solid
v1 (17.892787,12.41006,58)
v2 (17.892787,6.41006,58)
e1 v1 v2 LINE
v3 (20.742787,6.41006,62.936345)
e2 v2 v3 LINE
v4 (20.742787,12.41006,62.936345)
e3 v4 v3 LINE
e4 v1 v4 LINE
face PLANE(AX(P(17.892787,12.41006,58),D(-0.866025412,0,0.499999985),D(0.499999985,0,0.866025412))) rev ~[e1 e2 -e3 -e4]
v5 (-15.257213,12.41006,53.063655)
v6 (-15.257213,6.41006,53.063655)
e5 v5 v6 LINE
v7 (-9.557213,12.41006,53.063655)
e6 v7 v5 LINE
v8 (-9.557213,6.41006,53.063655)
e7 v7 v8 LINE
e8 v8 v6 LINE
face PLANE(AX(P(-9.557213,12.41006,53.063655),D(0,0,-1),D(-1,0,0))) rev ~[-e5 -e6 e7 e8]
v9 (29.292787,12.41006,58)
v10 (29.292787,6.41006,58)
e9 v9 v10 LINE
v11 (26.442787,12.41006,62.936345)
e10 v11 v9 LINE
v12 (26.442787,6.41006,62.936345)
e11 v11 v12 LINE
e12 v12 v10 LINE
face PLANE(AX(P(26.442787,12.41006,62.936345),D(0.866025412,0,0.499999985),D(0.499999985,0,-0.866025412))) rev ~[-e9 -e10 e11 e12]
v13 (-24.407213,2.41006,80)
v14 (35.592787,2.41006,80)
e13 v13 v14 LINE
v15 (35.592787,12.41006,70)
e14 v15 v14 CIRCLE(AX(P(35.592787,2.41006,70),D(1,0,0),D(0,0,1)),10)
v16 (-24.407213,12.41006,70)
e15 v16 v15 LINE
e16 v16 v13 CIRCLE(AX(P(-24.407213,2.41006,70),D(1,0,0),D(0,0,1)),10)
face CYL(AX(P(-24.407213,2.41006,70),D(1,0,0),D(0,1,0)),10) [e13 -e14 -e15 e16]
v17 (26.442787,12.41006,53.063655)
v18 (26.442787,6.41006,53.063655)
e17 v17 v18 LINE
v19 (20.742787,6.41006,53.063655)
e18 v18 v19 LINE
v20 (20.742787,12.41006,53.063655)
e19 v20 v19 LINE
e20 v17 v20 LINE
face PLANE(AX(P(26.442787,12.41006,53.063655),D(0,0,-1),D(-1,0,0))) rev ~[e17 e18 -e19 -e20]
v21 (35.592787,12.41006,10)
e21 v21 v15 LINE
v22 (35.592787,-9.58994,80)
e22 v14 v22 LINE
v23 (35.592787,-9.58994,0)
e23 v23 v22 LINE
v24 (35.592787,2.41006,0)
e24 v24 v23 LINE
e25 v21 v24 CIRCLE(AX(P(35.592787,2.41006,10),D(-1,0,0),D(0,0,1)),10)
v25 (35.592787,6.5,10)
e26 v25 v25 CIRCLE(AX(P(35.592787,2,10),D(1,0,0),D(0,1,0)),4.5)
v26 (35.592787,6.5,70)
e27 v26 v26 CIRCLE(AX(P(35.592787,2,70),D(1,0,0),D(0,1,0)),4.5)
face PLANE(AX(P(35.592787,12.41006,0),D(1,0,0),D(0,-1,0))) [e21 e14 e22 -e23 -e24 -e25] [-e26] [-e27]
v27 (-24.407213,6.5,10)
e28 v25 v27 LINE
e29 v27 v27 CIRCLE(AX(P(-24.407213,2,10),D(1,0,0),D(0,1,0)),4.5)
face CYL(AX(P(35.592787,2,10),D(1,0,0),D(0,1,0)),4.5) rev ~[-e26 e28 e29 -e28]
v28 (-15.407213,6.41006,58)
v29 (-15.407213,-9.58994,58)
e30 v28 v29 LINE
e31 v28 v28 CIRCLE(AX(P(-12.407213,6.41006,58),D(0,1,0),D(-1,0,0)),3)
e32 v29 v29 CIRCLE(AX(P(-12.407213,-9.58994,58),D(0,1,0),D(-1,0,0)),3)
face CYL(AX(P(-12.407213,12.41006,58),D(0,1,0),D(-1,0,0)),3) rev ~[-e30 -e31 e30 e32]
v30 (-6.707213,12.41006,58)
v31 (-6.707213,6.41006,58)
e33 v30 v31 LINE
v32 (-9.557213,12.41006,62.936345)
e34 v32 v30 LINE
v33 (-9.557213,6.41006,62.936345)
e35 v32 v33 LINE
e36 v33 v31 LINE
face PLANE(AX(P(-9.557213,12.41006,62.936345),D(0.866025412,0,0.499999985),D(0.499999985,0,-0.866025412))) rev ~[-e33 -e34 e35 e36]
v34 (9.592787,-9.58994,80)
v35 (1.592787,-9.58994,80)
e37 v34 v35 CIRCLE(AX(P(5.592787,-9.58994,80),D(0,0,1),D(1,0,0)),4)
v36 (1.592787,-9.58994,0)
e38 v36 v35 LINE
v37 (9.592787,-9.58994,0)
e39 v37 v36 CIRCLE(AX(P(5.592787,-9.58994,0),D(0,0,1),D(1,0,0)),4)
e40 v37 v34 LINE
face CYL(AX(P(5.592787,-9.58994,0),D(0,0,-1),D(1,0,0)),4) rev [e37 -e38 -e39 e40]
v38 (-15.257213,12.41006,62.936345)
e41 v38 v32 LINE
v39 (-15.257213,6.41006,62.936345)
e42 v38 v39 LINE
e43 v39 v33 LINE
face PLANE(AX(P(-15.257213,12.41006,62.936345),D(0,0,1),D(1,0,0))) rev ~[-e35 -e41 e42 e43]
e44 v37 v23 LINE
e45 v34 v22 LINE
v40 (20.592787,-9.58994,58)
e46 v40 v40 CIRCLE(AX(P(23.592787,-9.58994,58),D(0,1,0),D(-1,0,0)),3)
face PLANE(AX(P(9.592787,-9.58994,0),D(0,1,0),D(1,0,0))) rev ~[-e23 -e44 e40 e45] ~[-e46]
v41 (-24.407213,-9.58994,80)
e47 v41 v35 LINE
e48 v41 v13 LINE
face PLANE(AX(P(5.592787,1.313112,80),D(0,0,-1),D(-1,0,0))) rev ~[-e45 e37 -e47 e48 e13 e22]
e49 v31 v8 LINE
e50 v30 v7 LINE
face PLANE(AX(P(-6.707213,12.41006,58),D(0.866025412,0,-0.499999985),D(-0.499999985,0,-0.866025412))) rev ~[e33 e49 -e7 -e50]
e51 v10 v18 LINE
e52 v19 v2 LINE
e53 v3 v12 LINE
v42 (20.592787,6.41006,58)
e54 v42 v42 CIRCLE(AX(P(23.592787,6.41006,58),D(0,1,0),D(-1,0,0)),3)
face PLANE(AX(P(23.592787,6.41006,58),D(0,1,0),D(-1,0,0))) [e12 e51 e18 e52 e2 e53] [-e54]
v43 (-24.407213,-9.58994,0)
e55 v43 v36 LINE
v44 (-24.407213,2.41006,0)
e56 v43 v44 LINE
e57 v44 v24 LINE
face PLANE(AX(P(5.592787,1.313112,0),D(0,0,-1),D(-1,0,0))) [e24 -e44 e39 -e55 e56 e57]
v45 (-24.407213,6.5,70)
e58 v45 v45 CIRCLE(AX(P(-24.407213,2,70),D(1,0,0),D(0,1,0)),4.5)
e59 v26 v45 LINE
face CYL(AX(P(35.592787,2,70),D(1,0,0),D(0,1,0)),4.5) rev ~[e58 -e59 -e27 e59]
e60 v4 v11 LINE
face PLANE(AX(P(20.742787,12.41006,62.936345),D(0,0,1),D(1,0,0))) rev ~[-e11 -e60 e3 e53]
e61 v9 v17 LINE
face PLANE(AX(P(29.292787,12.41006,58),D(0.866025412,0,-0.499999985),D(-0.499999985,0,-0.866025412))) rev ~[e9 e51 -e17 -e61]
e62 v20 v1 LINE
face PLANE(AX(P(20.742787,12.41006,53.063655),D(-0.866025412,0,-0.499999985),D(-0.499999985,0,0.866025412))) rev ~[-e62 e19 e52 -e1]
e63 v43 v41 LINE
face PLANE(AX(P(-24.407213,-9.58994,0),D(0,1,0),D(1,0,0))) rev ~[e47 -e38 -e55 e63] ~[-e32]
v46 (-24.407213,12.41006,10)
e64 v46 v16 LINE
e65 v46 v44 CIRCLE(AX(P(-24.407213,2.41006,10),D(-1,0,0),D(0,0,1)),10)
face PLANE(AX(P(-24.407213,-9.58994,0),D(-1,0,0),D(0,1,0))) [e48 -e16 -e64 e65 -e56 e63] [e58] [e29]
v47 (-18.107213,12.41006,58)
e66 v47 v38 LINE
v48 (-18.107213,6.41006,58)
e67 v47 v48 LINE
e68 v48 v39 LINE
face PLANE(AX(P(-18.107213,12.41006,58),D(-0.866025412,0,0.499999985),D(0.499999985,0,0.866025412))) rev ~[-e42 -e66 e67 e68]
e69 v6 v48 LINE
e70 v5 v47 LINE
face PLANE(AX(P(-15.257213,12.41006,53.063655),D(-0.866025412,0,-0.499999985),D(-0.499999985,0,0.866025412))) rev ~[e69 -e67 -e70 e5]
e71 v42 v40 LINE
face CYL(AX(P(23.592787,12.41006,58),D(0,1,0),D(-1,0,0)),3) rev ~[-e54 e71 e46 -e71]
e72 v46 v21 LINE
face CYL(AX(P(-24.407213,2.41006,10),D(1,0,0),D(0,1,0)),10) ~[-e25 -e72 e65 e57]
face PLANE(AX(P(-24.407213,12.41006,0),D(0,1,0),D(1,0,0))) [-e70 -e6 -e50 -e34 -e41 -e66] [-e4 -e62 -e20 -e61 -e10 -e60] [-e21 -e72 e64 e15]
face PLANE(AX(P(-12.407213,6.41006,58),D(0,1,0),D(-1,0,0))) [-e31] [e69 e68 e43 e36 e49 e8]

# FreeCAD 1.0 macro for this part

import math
import FreeCAD as App
import Part
import Sketcher

V = App.Vector
Q = App.Units.Quantity


def edges_at(feature, points):
    """Names of the edges that pass closest to the given points."""
    edges = feature.Shape.Edges
    near = lambda p: min(range(len(edges)), key=lambda i: edges[i].distToShape(Part.Vertex(*p))[0])
    return sorted({f"Edge{near(p) + 1}" for p in points})

doc = App.newDocument("Part")
params = doc.addObject("Spreadsheet::Sheet", "Params")
for row, (alias, value) in enumerate([
    ("sketch1_diameter", "6 mm"),
    ("pad1_length", "22 mm"),
    ("sketch2_diameter", "9 mm"),
    ("pad2_length", "60 mm"),
    ("sketch3_width", "5.7 mm"),
    ("sketch3_length", "5.7 mm"),
    ("pad3_length", "6 mm"),
    ("sketch4_radius", "4 mm"),
    ("sketch4_width", "60 mm"),
    ("sketch4_height", "22 mm"),
    ("pad4_length", "80 mm"),
    ("fillet_radius", "10 mm"),
], start=1):
    params.set(f"A{row}", alias)
    params.set(f"B{row}", "=" + value)
    params.setAlias(f"B{row}", alias)

body = doc.addObject("PartDesign::Body", "Body")
body.AllowCompound = True

# Sketch on XZ plane
sketch1 = body.newObject("Sketcher::SketchObject", "Sketch")
sketch1.AttachmentSupport = (doc.getObject("XZ_Plane"), [""])
sketch1.MapMode = "FlatFace"
sketch1.AttachmentOffset = App.Placement(V(0, 0, -12.41006), App.Rotation())
sketch1.addGeometry([
    Part.Circle(V(23.6, 58, 0), V(0, 0, 1), 3),
    Part.Circle(V(-12.4, 58, 0), V(0, 0, 1), 3),
], False)
sketch1.addConstraint([
    Sketcher.Constraint("Equal", 0, 1),
    Sketcher.Constraint("Horizontal", 0, 3, 1, 3),
    Sketcher.Constraint("Diameter", 0, 6.0),
    Sketcher.Constraint("DistanceY", -1, 1, 0, 3, 58.0),
    Sketcher.Constraint("DistanceX", 1, 3, 0, 3, 36.0),
    Sketcher.Constraint("DistanceX", -1, 1, 0, 3, 23.592787),
])
sketch1.setExpression("Constraints[2]", "Params.sketch1_diameter")
pad1 = body.newObject("PartDesign::Pad", "Pad")
pad1.Profile = sketch1
pad1.setExpression("Length", "Params.pad1_length")
body2 = doc.addObject("PartDesign::Body", "Body001")
body2.AllowCompound = True

# Sketch on YZ plane
sketch2 = body2.newObject("Sketcher::SketchObject", "Sketch001")
sketch2.AttachmentSupport = (doc.getObject("YZ_Plane001"), [""])
sketch2.MapMode = "FlatFace"
sketch2.AttachmentOffset = App.Placement(V(0, 0, 35.592787), App.Rotation())
sketch2.addGeometry([
    Part.Circle(V(2, 70, 0), V(0, 0, 1), 4.5),
    Part.Circle(V(2, 10, 0), V(0, 0, 1), 4.5),
], False)
sketch2.addConstraint([
    Sketcher.Constraint("Equal", 0, 1),
    Sketcher.Constraint("Vertical", 0, 3, 1, 3),
    Sketcher.Constraint("Diameter", 0, 9.0),
    Sketcher.Constraint("DistanceX", -1, 1, 0, 3, 2.0),
    Sketcher.Constraint("DistanceY", -1, 1, 0, 3, 70.0),
    Sketcher.Constraint("DistanceY", -1, 1, 1, 3, 10.0),
])
sketch2.setExpression("Constraints[2]", "Params.sketch2_diameter")
pad2 = body2.newObject("PartDesign::Pad", "Pad001")
pad2.Profile = sketch2
pad2.setExpression("Length", "Params.pad2_length")
pad2.Reversed = True
body3 = doc.addObject("PartDesign::Body", "Body002")
body3.AllowCompound = True

# Sketch on XZ plane
sketch3 = body3.newObject("Sketcher::SketchObject", "Sketch002")
sketch3.AttachmentSupport = (doc.getObject("XZ_Plane002"), [""])
sketch3.MapMode = "FlatFace"
sketch3.AttachmentOffset = App.Placement(V(0, 0, -12.41006), App.Rotation())
sketch3.addGeometry([
    Part.LineSegment(V(21, 53, 0), V(18, 58, 0)),  # 0
    Part.LineSegment(V(18, 58, 0), V(21, 63, 0)),  # 1
    Part.LineSegment(V(21, 63, 0), V(26, 63, 0)),  # 2
    Part.LineSegment(V(26, 63, 0), V(29, 58, 0)),  # 3
    Part.LineSegment(V(29, 58, 0), V(26, 53, 0)),  # 4
    Part.LineSegment(V(26, 53, 0), V(21, 53, 0)),  # 5
    Part.LineSegment(V(-15, 53, 0), V(-18, 58, 0)),  # 6
    Part.LineSegment(V(-18, 58, 0), V(-15, 63, 0)),  # 7
    Part.LineSegment(V(-15, 63, 0), V(-10, 63, 0)),  # 8
    Part.LineSegment(V(-10, 63, 0), V(-7, 58, 0)),  # 9
    Part.LineSegment(V(-7, 58, 0), V(-10, 53, 0)),  # 10
    Part.LineSegment(V(-10, 53, 0), V(-15, 53, 0)),  # 11
], False)
sketch3.addConstraint([
    Sketcher.Constraint("Coincident", 0, 2, 1, 1),
    Sketcher.Constraint("Coincident", 1, 2, 2, 1),
    Sketcher.Constraint("Coincident", 2, 2, 3, 1),
    Sketcher.Constraint("Coincident", 3, 2, 4, 1),
    Sketcher.Constraint("Coincident", 4, 2, 5, 1),
    Sketcher.Constraint("Coincident", 5, 2, 0, 1),
    Sketcher.Constraint("Coincident", 6, 2, 7, 1),
    Sketcher.Constraint("Coincident", 7, 2, 8, 1),
    Sketcher.Constraint("Coincident", 8, 2, 9, 1),
    Sketcher.Constraint("Coincident", 9, 2, 10, 1),
    Sketcher.Constraint("Coincident", 10, 2, 11, 1),
    Sketcher.Constraint("Coincident", 11, 2, 6, 1),
    Sketcher.Constraint("Horizontal", 2),
    Sketcher.Constraint("Horizontal", 5),
    Sketcher.Constraint("Horizontal", 8),
    Sketcher.Constraint("Horizontal", 11),
    Sketcher.Constraint("Parallel", 0, 3),
    Sketcher.Constraint("Parallel", 1, 4),
    Sketcher.Constraint("Parallel", 3, 6),
    Sketcher.Constraint("Parallel", 4, 7),
    Sketcher.Constraint("Parallel", 6, 9),
    Sketcher.Constraint("Parallel", 7, 10),
    Sketcher.Constraint("Horizontal", 0, 2, 3, 2),
    Sketcher.Constraint("Horizontal", 3, 2, 6, 2),
    Sketcher.Constraint("Horizontal", 2, 2, 7, 2),
    Sketcher.Constraint("Horizontal", 6, 2, 9, 2),
    Sketcher.Constraint("Horizontal", 5, 2, 10, 2),
    Sketcher.Constraint("Vertical", 2, 2, 4, 2),
    Sketcher.Constraint("Vertical", 1, 2, 5, 2),
    Sketcher.Constraint("Equal", 5, 8),
    Sketcher.Constraint("Angle", 0, Q("119.999999 deg")),
    Sketcher.Constraint("DistanceX", 2, 1, 2, 2, 5.7),
    Sketcher.Constraint("DistanceY", -1, 1, 0, 2, 58.0),
    Sketcher.Constraint("DistanceX", 6, 2, 0, 2, 36.0),
    Sketcher.Constraint("Distance", 0, 5.7),
    Sketcher.Constraint("DistanceX", -1, 1, 0, 2, 17.892787),
])
sketch3.setExpression("Constraints[31]", "Params.sketch3_width")
sketch3.setExpression("Constraints[34]", "Params.sketch3_length")
pad3 = body3.newObject("PartDesign::Pad", "Pad002")
pad3.Profile = sketch3
pad3.setExpression("Length", "Params.pad3_length")
doc.recompute()

boolean = body3.newObject("PartDesign::Boolean", "Boolean")
boolean.Type = "Fuse"
boolean.addObjects([body])
doc.recompute()

boolean2 = body3.newObject("PartDesign::Boolean", "Boolean001")
boolean2.Type = "Fuse"
boolean2.addObjects([body2])
body4 = doc.addObject("PartDesign::Body", "Body003")

# Sketch on XY plane
sketch4 = body4.newObject("Sketcher::SketchObject", "Sketch003")
sketch4.AttachmentSupport = (doc.getObject("XY_Plane003"), [""])
sketch4.MapMode = "FlatFace"
sketch4.addGeometry([
    Part.LineSegment(V(35.6, 12.4, 0), V(-24.4, 12.4, 0)),  # 0
    Part.LineSegment(V(-24.4, 12.4, 0), V(-24.4, -9.6, 0)),  # 1
    Part.LineSegment(V(-24.4, -9.6, 0), V(1.6, -9.6, 0)),  # 2
    Part.ArcOfCircle(Part.Circle(V(5.6, -9.6, 0), V(0, 0, 1), 4), math.radians(0), math.radians(180)),  # 3
    Part.LineSegment(V(9.6, -9.6, 0), V(35.6, -9.6, 0)),  # 4
    Part.LineSegment(V(35.6, -9.6, 0), V(35.6, 12.4, 0)),  # 5
], False)
sketch4.addConstraint([
    Sketcher.Constraint("Coincident", 0, 2, 1, 1),
    Sketcher.Constraint("Coincident", 1, 2, 2, 1),
    Sketcher.Constraint("Coincident", 2, 2, 3, 2),
    Sketcher.Constraint("Coincident", 3, 1, 4, 1),
    Sketcher.Constraint("Coincident", 4, 2, 5, 1),
    Sketcher.Constraint("Coincident", 5, 2, 0, 1),
    Sketcher.Constraint("Horizontal", 0),
    Sketcher.Constraint("Vertical", 1),
    Sketcher.Constraint("Horizontal", 2),
    Sketcher.Constraint("Horizontal", 4),
    Sketcher.Constraint("Vertical", 5),
    Sketcher.Constraint("Horizontal", 3, 3, 1, 2),
    Sketcher.Constraint("Horizontal", 2, 2, 3, 1),
    Sketcher.Constraint("Equal", 2, 4),
    Sketcher.Constraint("Radius", 3, 4.0),
    Sketcher.Constraint("DistanceX", 0, 2, 0, 1, 60.0),
    Sketcher.Constraint("DistanceY", 1, 2, 1, 1, 22.0),
    Sketcher.Constraint("DistanceY", 3, 3, -1, 1, 9.58994),
    Sketcher.Constraint("DistanceX", -1, 1, 3, 3, 5.592787),
])
sketch4.setExpression("Constraints[14]", "Params.sketch4_radius")
sketch4.setExpression("Constraints[15]", "Params.sketch4_width")
sketch4.setExpression("Constraints[16]", "Params.sketch4_height")
pad4 = body4.newObject("PartDesign::Pad", "Pad003")
pad4.Profile = sketch4
pad4.setExpression("Length", "Params.pad4_length")
doc.recompute()

boolean3 = body4.newObject("PartDesign::Boolean", "Boolean002")
boolean3.Type = "Cut"
boolean3.addObjects([body3])
doc.recompute()

fillet = body4.newObject("PartDesign::Fillet", "Fillet")
fillet.Base = (boolean3, edges_at(boolean3, [(5.593, 12.41, 80), (5.593, 12.41, 0)]))
fillet.setExpression("Radius", "Params.fillet_radius")

doc.recompute()
